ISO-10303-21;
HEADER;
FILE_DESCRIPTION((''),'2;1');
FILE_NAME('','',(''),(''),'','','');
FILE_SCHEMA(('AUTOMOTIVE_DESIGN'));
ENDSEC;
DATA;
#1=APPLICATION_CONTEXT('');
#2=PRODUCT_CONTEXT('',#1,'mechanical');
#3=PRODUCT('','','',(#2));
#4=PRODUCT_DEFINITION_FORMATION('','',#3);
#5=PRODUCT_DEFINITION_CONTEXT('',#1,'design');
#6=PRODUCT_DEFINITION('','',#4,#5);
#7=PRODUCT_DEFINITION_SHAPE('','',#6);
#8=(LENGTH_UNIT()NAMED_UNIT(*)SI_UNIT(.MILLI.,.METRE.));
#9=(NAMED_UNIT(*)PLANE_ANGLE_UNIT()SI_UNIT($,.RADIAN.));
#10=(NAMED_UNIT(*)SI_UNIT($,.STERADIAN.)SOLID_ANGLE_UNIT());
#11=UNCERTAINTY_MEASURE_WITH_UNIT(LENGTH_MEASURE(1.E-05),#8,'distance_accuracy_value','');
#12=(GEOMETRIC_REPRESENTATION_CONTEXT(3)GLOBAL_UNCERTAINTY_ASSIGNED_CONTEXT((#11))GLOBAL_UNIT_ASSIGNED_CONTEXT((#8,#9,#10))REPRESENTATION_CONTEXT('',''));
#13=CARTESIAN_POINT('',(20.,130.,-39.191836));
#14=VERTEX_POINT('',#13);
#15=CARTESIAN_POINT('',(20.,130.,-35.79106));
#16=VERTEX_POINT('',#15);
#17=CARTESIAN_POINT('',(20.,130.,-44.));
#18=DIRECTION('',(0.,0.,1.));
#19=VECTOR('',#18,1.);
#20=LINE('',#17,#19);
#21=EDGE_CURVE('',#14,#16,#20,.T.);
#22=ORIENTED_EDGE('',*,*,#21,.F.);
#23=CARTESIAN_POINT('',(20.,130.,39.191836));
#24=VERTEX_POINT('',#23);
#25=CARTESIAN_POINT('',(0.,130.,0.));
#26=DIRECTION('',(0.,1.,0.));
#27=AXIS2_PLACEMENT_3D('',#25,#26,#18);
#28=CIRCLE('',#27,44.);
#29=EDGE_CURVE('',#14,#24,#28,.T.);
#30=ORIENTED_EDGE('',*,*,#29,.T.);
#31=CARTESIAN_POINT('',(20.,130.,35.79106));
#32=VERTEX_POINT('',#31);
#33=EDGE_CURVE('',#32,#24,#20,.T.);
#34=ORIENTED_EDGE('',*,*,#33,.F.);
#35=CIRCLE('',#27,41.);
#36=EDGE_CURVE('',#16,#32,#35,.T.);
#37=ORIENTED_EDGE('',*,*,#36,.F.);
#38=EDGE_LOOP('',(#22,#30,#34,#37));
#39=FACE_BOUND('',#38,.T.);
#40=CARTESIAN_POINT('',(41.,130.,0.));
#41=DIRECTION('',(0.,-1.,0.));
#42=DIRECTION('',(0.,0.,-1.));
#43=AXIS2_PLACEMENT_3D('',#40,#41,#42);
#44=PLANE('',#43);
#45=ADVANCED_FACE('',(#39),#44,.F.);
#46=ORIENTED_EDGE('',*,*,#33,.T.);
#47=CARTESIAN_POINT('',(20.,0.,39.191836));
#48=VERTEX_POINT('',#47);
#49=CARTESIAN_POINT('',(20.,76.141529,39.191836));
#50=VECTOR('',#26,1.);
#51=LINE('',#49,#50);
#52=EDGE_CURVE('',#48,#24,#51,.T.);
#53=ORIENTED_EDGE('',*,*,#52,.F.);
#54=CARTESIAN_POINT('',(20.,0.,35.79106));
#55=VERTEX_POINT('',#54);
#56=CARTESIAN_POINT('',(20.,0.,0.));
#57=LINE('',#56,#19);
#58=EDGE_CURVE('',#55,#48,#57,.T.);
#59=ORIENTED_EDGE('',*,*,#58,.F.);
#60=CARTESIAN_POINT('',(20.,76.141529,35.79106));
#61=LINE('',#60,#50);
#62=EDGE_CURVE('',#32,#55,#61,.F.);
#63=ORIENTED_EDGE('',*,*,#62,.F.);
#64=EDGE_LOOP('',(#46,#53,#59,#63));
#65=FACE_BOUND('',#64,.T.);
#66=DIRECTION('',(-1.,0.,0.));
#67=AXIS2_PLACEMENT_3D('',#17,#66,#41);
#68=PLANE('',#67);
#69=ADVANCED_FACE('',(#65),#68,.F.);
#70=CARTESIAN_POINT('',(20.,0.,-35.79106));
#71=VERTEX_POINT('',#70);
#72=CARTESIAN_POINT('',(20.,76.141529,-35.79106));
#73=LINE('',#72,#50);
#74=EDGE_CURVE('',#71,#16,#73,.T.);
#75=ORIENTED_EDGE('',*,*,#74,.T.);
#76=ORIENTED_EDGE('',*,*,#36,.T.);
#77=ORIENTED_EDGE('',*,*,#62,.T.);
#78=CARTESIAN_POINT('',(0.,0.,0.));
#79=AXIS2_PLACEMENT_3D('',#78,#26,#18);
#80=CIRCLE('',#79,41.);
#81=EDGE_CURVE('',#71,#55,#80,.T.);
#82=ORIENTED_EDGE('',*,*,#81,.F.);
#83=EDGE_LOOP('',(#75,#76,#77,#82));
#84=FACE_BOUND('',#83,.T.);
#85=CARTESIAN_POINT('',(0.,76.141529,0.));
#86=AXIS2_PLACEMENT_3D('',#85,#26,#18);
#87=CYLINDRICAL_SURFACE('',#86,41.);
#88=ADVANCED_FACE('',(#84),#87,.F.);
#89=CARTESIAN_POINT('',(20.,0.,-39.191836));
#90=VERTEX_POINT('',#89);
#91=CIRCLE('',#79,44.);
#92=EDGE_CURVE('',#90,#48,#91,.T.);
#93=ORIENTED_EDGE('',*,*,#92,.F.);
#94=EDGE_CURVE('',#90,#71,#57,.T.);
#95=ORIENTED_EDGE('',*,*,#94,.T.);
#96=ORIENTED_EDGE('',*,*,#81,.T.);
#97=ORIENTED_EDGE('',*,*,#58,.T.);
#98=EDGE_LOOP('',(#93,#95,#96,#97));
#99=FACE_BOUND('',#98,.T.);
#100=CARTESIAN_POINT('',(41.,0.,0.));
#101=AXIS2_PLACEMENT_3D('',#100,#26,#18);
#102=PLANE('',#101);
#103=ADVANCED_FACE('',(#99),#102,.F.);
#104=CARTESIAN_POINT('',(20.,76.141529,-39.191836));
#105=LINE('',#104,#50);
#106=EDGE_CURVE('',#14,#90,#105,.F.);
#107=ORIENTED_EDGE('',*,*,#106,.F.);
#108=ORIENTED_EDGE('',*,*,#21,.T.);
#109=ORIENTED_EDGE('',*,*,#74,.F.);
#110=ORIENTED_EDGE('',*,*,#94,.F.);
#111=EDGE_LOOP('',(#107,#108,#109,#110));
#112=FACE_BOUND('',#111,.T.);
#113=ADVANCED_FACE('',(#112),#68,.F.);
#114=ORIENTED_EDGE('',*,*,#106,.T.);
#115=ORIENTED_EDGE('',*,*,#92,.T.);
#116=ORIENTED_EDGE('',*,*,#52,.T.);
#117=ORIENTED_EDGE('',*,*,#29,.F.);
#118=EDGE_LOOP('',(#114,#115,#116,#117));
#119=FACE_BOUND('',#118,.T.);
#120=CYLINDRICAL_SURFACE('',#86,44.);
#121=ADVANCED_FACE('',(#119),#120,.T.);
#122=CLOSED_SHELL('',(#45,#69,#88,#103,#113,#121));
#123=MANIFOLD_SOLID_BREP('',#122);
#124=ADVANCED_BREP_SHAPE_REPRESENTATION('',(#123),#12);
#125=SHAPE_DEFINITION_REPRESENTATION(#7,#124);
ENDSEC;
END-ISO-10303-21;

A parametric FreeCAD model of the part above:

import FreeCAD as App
import Part
import Sketcher
from FreeCAD import Vector
Q = App.Units.Quantity


def add_polygon(sketch, points):
    """Adds a closed chain of lines whose ends are joined by coincident constraints."""
    first, n = sketch.GeometryCount, len(points)
    for a, b in zip(points, points[1:] + points[:1]):
        sketch.addGeometry(Part.LineSegment(App.Vector(*a, 0), App.Vector(*b, 0)), False)
    for i in range(n):
        sketch.addConstraint(Sketcher.Constraint("Coincident", first + i, 2, first + (i + 1) % n, 1))

doc = App.newDocument("Part")
body = doc.addObject("PartDesign::Body", "Body")

# Sketch on XY plane
sketch1 = doc.addObject("Sketcher::SketchObject", "Sketch")
body.addObject(sketch1)
sketch1.AttachmentSupport = (doc.XY_Plane, [""])
sketch1.MapMode = "FlatFace"
add_polygon(sketch1, [(41, 130), (41, 0), (44, 0), (44, 130)])  # lines 0-3
sketch1.addConstraint([
    Sketcher.Constraint("Vertical", 0),
    Sketcher.Constraint("Horizontal", 1),
    Sketcher.Constraint("Vertical", 2),
    Sketcher.Constraint("Horizontal", 3),
    Sketcher.Constraint("PointOnObject", 0, 2, -1),
    Sketcher.Constraint("DistanceX", 1, 1, 1, 2, Q("3 mm")),
    Sketcher.Constraint("DistanceY", 0, 2, 0, 1, Q("130 mm")),
    Sketcher.Constraint("DistanceX", -1, 1, 0, 2, Q("41 mm")),
])
revolution = doc.addObject("PartDesign::Revolution", "Revolution")
body.addObject(revolution)
revolution.Profile = sketch1
revolution.ReferenceAxis = (sketch1, ["V_Axis"])
revolution.Angle = 360

# Sketch on XY plane
sketch2 = doc.addObject("Sketcher::SketchObject", "Sketch001")
body.addObject(sketch2)
sketch2.AttachmentSupport = (doc.XY_Plane, [""])
sketch2.MapMode = "FlatFace"
add_polygon(sketch2, [(20, 130), (20, 0), (55, 0), (55, 130)])  # lines 0-3
sketch2.addConstraint([
    Sketcher.Constraint("Vertical", 0),
    Sketcher.Constraint("Horizontal", 1),
    Sketcher.Constraint("Vertical", 2),
    Sketcher.Constraint("Horizontal", 3),
    Sketcher.Constraint("PointOnObject", 0, 2, -1),
    Sketcher.Constraint("DistanceX", 1, 1, 1, 2, Q("35 mm")),
    Sketcher.Constraint("DistanceY", 0, 2, 0, 1, Q("130 mm")),
    Sketcher.Constraint("DistanceX", -1, 1, 0, 2, Q("20 mm")),
])
pocket1 = doc.addObject("PartDesign::Pocket", "Pocket")
body.addObject(pocket1)
pocket1.Profile = sketch2
pocket1.Type = "ThroughAll"
pocket1.Midplane = True

doc.recompute()
